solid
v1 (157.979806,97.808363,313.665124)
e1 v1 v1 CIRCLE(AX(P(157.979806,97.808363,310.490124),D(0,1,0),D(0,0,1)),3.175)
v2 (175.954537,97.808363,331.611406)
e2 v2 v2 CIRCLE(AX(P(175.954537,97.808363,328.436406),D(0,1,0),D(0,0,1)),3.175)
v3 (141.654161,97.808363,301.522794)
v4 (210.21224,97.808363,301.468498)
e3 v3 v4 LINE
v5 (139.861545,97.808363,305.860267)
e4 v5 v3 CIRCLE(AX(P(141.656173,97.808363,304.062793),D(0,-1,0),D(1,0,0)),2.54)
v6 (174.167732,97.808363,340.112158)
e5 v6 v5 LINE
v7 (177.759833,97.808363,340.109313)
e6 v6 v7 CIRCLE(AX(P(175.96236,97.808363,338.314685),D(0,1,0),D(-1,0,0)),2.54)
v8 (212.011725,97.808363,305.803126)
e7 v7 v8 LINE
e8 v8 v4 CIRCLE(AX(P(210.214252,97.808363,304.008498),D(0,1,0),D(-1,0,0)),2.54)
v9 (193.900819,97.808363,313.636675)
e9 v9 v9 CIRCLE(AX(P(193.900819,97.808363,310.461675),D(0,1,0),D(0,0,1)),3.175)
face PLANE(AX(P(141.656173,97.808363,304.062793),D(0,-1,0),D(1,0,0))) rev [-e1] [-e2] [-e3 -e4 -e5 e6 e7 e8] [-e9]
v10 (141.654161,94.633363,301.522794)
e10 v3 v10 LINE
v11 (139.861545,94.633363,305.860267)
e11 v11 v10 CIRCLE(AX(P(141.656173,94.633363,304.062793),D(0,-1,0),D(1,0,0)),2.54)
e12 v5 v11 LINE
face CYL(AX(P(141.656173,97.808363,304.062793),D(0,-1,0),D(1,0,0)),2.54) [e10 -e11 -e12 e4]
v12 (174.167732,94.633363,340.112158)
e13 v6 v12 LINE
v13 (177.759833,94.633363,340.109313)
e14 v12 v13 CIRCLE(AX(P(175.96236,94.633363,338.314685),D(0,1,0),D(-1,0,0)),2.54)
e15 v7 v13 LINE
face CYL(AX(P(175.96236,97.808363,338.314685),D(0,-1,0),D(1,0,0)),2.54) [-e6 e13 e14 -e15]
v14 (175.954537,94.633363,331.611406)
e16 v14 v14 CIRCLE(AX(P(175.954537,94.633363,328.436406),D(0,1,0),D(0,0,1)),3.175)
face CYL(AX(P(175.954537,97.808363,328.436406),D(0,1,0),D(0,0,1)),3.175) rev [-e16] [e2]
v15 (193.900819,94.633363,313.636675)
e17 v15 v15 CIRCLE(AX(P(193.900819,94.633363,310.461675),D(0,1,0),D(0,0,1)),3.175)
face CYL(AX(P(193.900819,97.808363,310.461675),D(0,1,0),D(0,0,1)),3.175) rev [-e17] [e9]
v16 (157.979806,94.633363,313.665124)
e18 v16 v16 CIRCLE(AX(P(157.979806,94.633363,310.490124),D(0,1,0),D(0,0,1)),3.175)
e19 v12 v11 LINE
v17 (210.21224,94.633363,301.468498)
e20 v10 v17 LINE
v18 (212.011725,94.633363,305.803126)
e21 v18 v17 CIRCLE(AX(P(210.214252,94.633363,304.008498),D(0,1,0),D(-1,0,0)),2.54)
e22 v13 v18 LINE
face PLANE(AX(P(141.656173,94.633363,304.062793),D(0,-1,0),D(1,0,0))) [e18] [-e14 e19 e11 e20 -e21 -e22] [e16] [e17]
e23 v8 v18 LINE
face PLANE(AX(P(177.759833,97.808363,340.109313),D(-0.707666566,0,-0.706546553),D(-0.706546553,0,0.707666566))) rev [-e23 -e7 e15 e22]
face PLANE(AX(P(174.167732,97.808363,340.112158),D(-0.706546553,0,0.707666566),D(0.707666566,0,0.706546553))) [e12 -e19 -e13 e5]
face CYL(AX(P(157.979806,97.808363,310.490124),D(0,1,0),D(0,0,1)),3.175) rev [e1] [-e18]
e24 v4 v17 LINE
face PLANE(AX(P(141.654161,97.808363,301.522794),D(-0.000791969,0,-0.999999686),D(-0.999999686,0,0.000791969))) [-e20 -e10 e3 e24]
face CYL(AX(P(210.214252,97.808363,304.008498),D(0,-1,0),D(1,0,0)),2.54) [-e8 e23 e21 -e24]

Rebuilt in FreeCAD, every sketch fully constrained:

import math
import FreeCAD as App
import Part
import Sketcher

V = App.Vector
Q = App.Units.Quantity

doc = App.newDocument("Part")
params = doc.addObject("Spreadsheet::Sheet", "Params")
for row, (alias, value) in enumerate([
    ("sketch1_radius", "0.1 in"),
    ("pad1_length", "0.125 in"),
    ("sketch2_diameter", "0.25 in"),
    ("hole_diameter", "0.25 in"),
], start=1):
    params.set(f"A{row}", alias)
    params.set(f"B{row}", "=" + value)
    params.setAlias(f"B{row}", alias)

body = doc.addObject("PartDesign::Body", "Body")

sketch1 = body.newObject("Sketcher::SketchObject", "Sketch")
sketch1.AttachmentSupport = (doc.getObject("XZ_Plane"), [""])
sketch1.MapMode = "FlatFace"
sketch1.AttachmentOffset = App.Placement(V(0, 0, -94.633363), App.Rotation())
sketch1.addGeometry([
    Part.LineSegment(V(177.8, 340.1, 0), V(212, 305.8, 0)),
    Part.ArcOfCircle(Part.Circle(V(210.2, 304, 0), V(0, 0, 1), 2.5), math.radians(-90), math.radians(45)),
    Part.LineSegment(V(210.2, 301.5, 0), V(141.7, 301.5, 0)),
    Part.ArcOfCircle(Part.Circle(V(141.7, 304.1, 0), V(0, 0, 1), 2.5), math.radians(135), math.radians(270)),
    Part.LineSegment(V(139.9, 305.9, 0), V(174.2, 340.1, 0)),
    Part.ArcOfCircle(Part.Circle(V(176, 338.3, 0), V(0, 0, 1), 2.5), math.radians(45), math.radians(135)),
], False)
sketch1.addConstraint([
    Sketcher.Constraint("Tangent", 0, 2, 1, 2),
    Sketcher.Constraint("Tangent", 1, 1, 2, 1),
    Sketcher.Constraint("Tangent", 2, 2, 3, 2),
    Sketcher.Constraint("Tangent", 3, 1, 4, 1),
    Sketcher.Constraint("Tangent", 4, 2, 5, 2),
    Sketcher.Constraint("Tangent", 5, 1, 0, 1),
    Sketcher.Constraint("Equal", 1, 3),
    Sketcher.Constraint("Equal", 3, 5),
    Sketcher.Constraint("Perpendicular", 0, 4),
    Sketcher.Constraint("Equal", 0, 4),
    Sketcher.Constraint("Radius", 1, Q("0.1 in")),
    Sketcher.Constraint("Distance", 2, Q("68.5581 mm")),
    Sketcher.Constraint("DistanceY", -1, 1, 1, 1, Q("301.468498 mm")),
    Sketcher.Constraint("DistanceX", 2, 2, 5, 3, Q("34.308199 mm")),
    Sketcher.Constraint("DistanceX", -1, 1, 1, 3, Q("210.214252 mm")),
])
sketch1.setExpression("Constraints[10]", "Params.sketch1_radius")
pad1 = body.newObject("PartDesign::Pad", "Pad")
pad1.Profile = sketch1
pad1.setExpression("Length", "Params.pad1_length")
pad1.Reversed = True

sketch2 = body.newObject("Sketcher::SketchObject", "Sketch001")
sketch2.AttachmentSupport = (doc.getObject("XZ_Plane"), [""])
sketch2.MapMode = "FlatFace"
sketch2.AttachmentOffset = App.Placement(V(0, 0, -97.808363), App.Rotation())
sketch2.addGeometry([
    Part.Circle(V(158, 310.5, 0), V(0, 0, 1), 3.2),
    Part.Circle(V(176, 328.4, 0), V(0, 0, 1), 3.2),
    Part.Circle(V(193.9, 310.5, 0), V(0, 0, 1), 3.2),
], False)
sketch2.addConstraint([
    Sketcher.Constraint("Equal", 0, 1),
    Sketcher.Constraint("Equal", 1, 2),
    Sketcher.Constraint("Diameter", 0, Q("0.25 in")),
    Sketcher.Constraint("DistanceX", -1, 1, 2, 3, Q("193.900819 mm")),
    Sketcher.Constraint("DistanceX", 0, 3, 1, 3, Q("17.974731 mm")),
    Sketcher.Constraint("DistanceY", 2, 3, 1, 3, Q("17.974731 mm")),
    Sketcher.Constraint("DistanceY", 2, 3, 0, 3, Q("0.028448 mm")),
    Sketcher.Constraint("DistanceX", -1, 1, 0, 3, Q("157.979806 mm")),
    Sketcher.Constraint("DistanceY", -1, 1, 0, 3, Q("310.490124 mm")),
])
sketch2.setExpression("Constraints[2]", "Params.sketch2_diameter")
doc.recompute()
hole = body.newObject("PartDesign::Hole", "Hole")
hole.Profile = sketch2
hole.ThreadType = "None"
hole.setExpression("Diameter", "Params.hole_diameter")
hole.DepthType = "ThroughAll"
hole.Reversed = True

doc.recompute()
